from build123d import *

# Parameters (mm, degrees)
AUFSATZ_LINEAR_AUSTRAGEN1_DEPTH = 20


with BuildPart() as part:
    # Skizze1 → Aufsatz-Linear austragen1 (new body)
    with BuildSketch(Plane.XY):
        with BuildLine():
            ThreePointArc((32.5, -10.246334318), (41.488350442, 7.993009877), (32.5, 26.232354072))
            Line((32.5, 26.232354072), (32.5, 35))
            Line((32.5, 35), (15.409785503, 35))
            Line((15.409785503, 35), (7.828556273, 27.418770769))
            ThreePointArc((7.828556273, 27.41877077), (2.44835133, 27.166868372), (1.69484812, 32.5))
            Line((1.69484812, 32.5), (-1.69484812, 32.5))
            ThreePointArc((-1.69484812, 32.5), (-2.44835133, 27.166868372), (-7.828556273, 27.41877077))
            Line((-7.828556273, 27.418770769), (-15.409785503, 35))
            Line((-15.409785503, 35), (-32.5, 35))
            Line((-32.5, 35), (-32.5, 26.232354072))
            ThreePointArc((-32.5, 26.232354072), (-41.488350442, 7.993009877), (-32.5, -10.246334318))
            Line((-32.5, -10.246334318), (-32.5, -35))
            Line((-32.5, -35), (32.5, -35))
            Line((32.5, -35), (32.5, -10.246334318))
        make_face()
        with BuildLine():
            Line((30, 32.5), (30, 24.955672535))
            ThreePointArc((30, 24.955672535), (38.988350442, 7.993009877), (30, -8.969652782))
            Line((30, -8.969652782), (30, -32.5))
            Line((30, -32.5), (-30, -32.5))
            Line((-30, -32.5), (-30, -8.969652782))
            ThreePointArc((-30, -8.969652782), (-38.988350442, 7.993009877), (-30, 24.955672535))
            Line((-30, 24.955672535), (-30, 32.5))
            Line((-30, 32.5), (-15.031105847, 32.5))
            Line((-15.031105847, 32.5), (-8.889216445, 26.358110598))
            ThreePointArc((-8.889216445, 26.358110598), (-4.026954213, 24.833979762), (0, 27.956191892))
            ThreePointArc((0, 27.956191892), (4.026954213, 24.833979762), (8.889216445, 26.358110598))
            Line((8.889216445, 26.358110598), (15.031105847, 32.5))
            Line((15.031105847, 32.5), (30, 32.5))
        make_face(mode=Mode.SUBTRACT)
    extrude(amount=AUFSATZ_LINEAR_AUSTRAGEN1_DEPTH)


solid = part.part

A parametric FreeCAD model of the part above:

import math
import FreeCAD as App
import Part
import Sketcher

doc = App.newDocument("Part")
params = doc.addObject("Spreadsheet::Sheet", "Params")
for row, (alias, value) in enumerate([
    ("sketch1_radius", "23 mm"),
    ("sketch1_radius2", "4 mm"),
    ("sketch1_radius3", "20.5 mm"),
    ("sketch1_radius4", "5.5 mm"),
    ("sketch1_width", "65 mm"),
    ("pad1_length", "20 mm"),
], start=1):
    params.set(f"A{row}", alias)
    params.set(f"B{row}", "=" + value)
    params.setAlias(f"B{row}", alias)

body = doc.addObject("PartDesign::Body", "Body")

# Sketch on XY plane
sketch1 = body.newObject("Sketcher::SketchObject", "Sketch")
sketch1.AttachmentSupport = (doc.getObject("XY_Plane"), [""])
sketch1.MapMode = "FlatFace"
sketch1.addGeometry([
    Part.ArcOfCircle(Part.Circle(App.Vector(18.48835, 7.99301, 0), App.Vector(0, 0, 1), 23), math.radians(-52.468164), math.radians(52.468164)),  # 0
    Part.LineSegment(App.Vector(32.5, 26.232354, 0), App.Vector(32.5, 35, 0)),  # 1
    Part.LineSegment(App.Vector(32.5, 35, 0), App.Vector(15.409786, 35, 0)),  # 2
    Part.LineSegment(App.Vector(15.409786, 35, 0), App.Vector(7.828556, 27.418771, 0)),  # 3
    Part.ArcOfCircle(Part.Circle(App.Vector(5.000129, 30.247198, 0), App.Vector(0, 0, 1), 4), math.radians(145.722574), math.radians(315)),  # 4
    Part.LineSegment(App.Vector(1.694848, 32.5, 0), App.Vector(-1.694848, 32.5, 0)),  # 5
    Part.ArcOfCircle(Part.Circle(App.Vector(-5.000129, 30.247198, 0), App.Vector(0, 0, 1), 4), math.radians(-135), math.radians(34.277426)),  # 6
    Part.LineSegment(App.Vector(-7.828556, 27.418771, 0), App.Vector(-15.409786, 35, 0)),  # 7
    Part.LineSegment(App.Vector(-15.409786, 35, 0), App.Vector(-32.5, 35, 0)),  # 8
    Part.LineSegment(App.Vector(-32.5, 35, 0), App.Vector(-32.5, 26.232354, 0)),  # 9
    Part.ArcOfCircle(Part.Circle(App.Vector(-18.48835, 7.99301, 0), App.Vector(0, 0, 1), 23), math.radians(127.531836), math.radians(232.468164)),  # 10
    Part.LineSegment(App.Vector(-32.5, -10.246334, 0), App.Vector(-32.5, -35, 0)),  # 11
    Part.LineSegment(App.Vector(-32.5, -35, 0), App.Vector(32.5, -35, 0)),  # 12
    Part.LineSegment(App.Vector(32.5, -35, 0), App.Vector(32.5, -10.246334, 0)),  # 13
    Part.LineSegment(App.Vector(15.031106, 32.5, 0), App.Vector(30, 32.5, 0)),  # 14
    Part.LineSegment(App.Vector(30, 32.5, 0), App.Vector(30, 24.955673, 0)),  # 15
    Part.ArcOfCircle(Part.Circle(App.Vector(18.48835, 7.99301, 0), App.Vector(0, 0, 1), 20.5), math.radians(-55.837365), math.radians(55.837365)),  # 16
    Part.LineSegment(App.Vector(30, -8.969653, 0), App.Vector(30, -32.5, 0)),  # 17
    Part.LineSegment(App.Vector(30, -32.5, 0), App.Vector(-30, -32.5, 0)),  # 18
    Part.LineSegment(App.Vector(-30, -32.5, 0), App.Vector(-30, -8.969653, 0)),  # 19
    Part.ArcOfCircle(Part.Circle(App.Vector(-18.48835, 7.99301, 0), App.Vector(0, 0, 1), 20.5), math.radians(124.162635), math.radians(235.837365)),  # 20
    Part.LineSegment(App.Vector(-30, 24.955673, 0), App.Vector(-30, 32.5, 0)),  # 21
    Part.LineSegment(App.Vector(-30, 32.5, 0), App.Vector(-15.031106, 32.5, 0)),  # 22
    Part.LineSegment(App.Vector(-15.031106, 32.5, 0), App.Vector(-8.889216, 26.358111, 0)),  # 23
    Part.ArcOfCircle(Part.Circle(App.Vector(-5.000129, 30.247198, 0), App.Vector(0, 0, 1), 5.5), math.radians(-135), math.radians(-24.616748)),  # 24
    Part.ArcOfCircle(Part.Circle(App.Vector(5.000129, 30.247198, 0), App.Vector(0, 0, 1), 5.5), math.radians(-155.383252), math.radians(-45)),  # 25
    Part.LineSegment(App.Vector(8.889216, 26.358111, 0), App.Vector(15.031106, 32.5, 0)),  # 26
], False)
sketch1.addConstraint([
    Sketcher.Constraint("Coincident", 0, 2, 1, 1),
    Sketcher.Constraint("Coincident", 1, 2, 2, 1),
    Sketcher.Constraint("Coincident", 2, 2, 3, 1),
    Sketcher.Constraint("Tangent", 3, 2, 4, 2),
    Sketcher.Constraint("Coincident", 4, 1, 5, 1),
    Sketcher.Constraint("Coincident", 5, 2, 6, 2),
    Sketcher.Constraint("Tangent", 6, 1, 7, 1),
    Sketcher.Constraint("Coincident", 7, 2, 8, 1),
    Sketcher.Constraint("Coincident", 8, 2, 9, 1),
    Sketcher.Constraint("Coincident", 9, 2, 10, 1),
    Sketcher.Constraint("Coincident", 10, 2, 11, 1),
    Sketcher.Constraint("Coincident", 11, 2, 12, 1),
    Sketcher.Constraint("Coincident", 12, 2, 13, 1),
    Sketcher.Constraint("Coincident", 13, 2, 0, 1),
    Sketcher.Constraint("Coincident", 14, 2, 15, 1),
    Sketcher.Constraint("Coincident", 15, 2, 16, 2),
    Sketcher.Constraint("Coincident", 16, 1, 17, 1),
    Sketcher.Constraint("Coincident", 17, 2, 18, 1),
    Sketcher.Constraint("Coincident", 18, 2, 19, 1),
    Sketcher.Constraint("Coincident", 19, 2, 20, 2),
    Sketcher.Constraint("Coincident", 20, 1, 21, 1),
    Sketcher.Constraint("Coincident", 21, 2, 22, 1),
    Sketcher.Constraint("Coincident", 22, 2, 23, 1),
    Sketcher.Constraint("Tangent", 23, 2, 24, 1),
    Sketcher.Constraint("Coincident", 24, 2, 25, 1),
    Sketcher.Constraint("Tangent", 25, 2, 26, 1),
    Sketcher.Constraint("Coincident", 26, 2, 14, 1),
    Sketcher.Constraint("Vertical", 1),
    Sketcher.Constraint("Horizontal", 2),
    Sketcher.Constraint("Horizontal", 5),
    Sketcher.Constraint("Horizontal", 8),
    Sketcher.Constraint("Vertical", 9),
    Sketcher.Constraint("Vertical", 11),
    Sketcher.Constraint("Horizontal", 12),
    Sketcher.Constraint("Vertical", 13),
    Sketcher.Constraint("Horizontal", 14),
    Sketcher.Constraint("Vertical", 15),
    Sketcher.Constraint("Vertical", 17),
    Sketcher.Constraint("Horizontal", 18),
    Sketcher.Constraint("Vertical", 19),
    Sketcher.Constraint("Vertical", 21),
    Sketcher.Constraint("Horizontal", 22),
    Sketcher.Constraint("Coincident", 16, 3, 0, 3),
    Sketcher.Constraint("Coincident", 20, 3, 10, 3),
    Sketcher.Constraint("Coincident", 24, 3, 6, 3),
    Sketcher.Constraint("Coincident", 25, 3, 4, 3),
    Sketcher.Constraint("Equal", 4, 6),
    Sketcher.Constraint("Equal", 0, 10),
    Sketcher.Constraint("Equal", 16, 20),
    Sketcher.Constraint("Equal", 24, 25),
    Sketcher.Constraint("Symmetric", 1, 2, 11, 2, -1, 1),
    Sketcher.Constraint("Symmetric", 8, 2, 12, 2, -1, 1),
    Sketcher.Constraint("Symmetric", 14, 2, 18, 2, -1, 1),
    Sketcher.Constraint("Symmetric", 17, 2, 21, 2, -1, 1),
    Sketcher.Constraint("Symmetric", 4, 3, 6, 3, -2),
    Sketcher.Constraint("Symmetric", 0, 3, 10, 3, -2),
    Sketcher.Constraint("Perpendicular", 3, 7),
    Sketcher.Constraint("Parallel", 7, 23),
    Sketcher.Constraint("Perpendicular", 23, 26),
    Sketcher.Constraint("Horizontal", 3, 2, 6, 1),
    Sketcher.Constraint("Horizontal", 0, 2, 9, 2),
    Sketcher.Constraint("Horizontal", 5, 2, 14, 2),
    Sketcher.Constraint("Horizontal", 16, 1, 19, 2),
    Sketcher.Constraint("Radius", 0, 23.0),
    Sketcher.Constraint("Radius", 4, 4.0),
    Sketcher.Constraint("Radius", 16, 20.5),
    Sketcher.Constraint("Radius", 24, 5.5),
    Sketcher.Constraint("DistanceX", 12, 1, 12, 2, 65.0),
    Sketcher.Constraint("DistanceX", 18, 2, 18, 1, 60.0),
    Sketcher.Constraint("DistanceY", -1, 1, 1, 2, 35.0),
    Sketcher.Constraint("DistanceY", -1, 1, 4, 1, 32.5),
    Sketcher.Constraint("DistanceX", 10, 3, 0, 3, 36.976701),
    Sketcher.Constraint("DistanceX", 2, 2, 2, 1, 17.090214),
    Sketcher.Constraint("DistanceX", 5, 2, 5, 1, 3.389696),
    Sketcher.Constraint("DistanceY", 1, 1, 1, 2, 8.767646),
])
sketch1.setExpression("Constraints[63]", "Params.sketch1_radius")
sketch1.setExpression("Constraints[64]", "Params.sketch1_radius2")
sketch1.setExpression("Constraints[65]", "Params.sketch1_radius3")
sketch1.setExpression("Constraints[66]", "Params.sketch1_radius4")
sketch1.setExpression("Constraints[67]", "Params.sketch1_width")
pad1 = body.newObject("PartDesign::Pad", "Pad")
pad1.Profile = sketch1
pad1.setExpression("Length", "Params.pad1_length")

doc.recompute()
